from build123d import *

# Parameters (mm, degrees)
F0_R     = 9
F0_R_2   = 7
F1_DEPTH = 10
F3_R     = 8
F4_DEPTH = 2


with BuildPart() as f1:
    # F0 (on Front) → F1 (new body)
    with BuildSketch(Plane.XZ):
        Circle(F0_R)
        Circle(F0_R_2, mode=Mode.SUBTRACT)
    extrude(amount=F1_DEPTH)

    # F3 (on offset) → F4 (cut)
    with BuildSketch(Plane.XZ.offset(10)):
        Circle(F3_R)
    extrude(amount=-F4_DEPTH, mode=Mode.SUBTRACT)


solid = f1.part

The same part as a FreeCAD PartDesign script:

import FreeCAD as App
import Part
import Sketcher

V = App.Vector
Q = App.Units.Quantity

doc = App.newDocument("Part")
params = doc.addObject("Spreadsheet::Sheet", "Params")
for row, (alias, value) in enumerate([
    ("sketch1_diameter", "18 mm"),
    ("sketch1_diameter2", "14 mm"),
    ("pad1_length", "10 mm"),
    ("sketch2_diameter", "16 mm"),
    ("pocket1_length", "2 mm"),
], start=1):
    params.set(f"A{row}", alias)
    params.set(f"B{row}", "=" + value)
    params.setAlias(f"B{row}", alias)

body = doc.addObject("PartDesign::Body", "Body")

sketch1 = doc.addObject("Sketcher::SketchObject", "Sketch")
body.addObject(sketch1)
sketch1.AttachmentSupport = (doc.XZ_Plane, [""])
sketch1.MapMode = "FlatFace"
sketch1.addGeometry([
    Part.Circle(V(0, 0, 0), V(0, 0, 1), 9),
    Part.Circle(V(0, 0, 0), V(0, 0, 1), 7),
], False)
sketch1.addConstraint([
    Sketcher.Constraint("Coincident", 0, 3, -1, 1),
    Sketcher.Constraint("Coincident", 1, 3, -1, 1),
    Sketcher.Constraint("Diameter", 0, Q("18 mm")),
    Sketcher.Constraint("Diameter", 1, Q("14 mm")),
])
sketch1.setExpression("Constraints[2]", "Params.sketch1_diameter")
sketch1.setExpression("Constraints[3]", "Params.sketch1_diameter2")
pad1 = doc.addObject("PartDesign::Pad", "Pad")
body.addObject(pad1)
pad1.Profile = sketch1
pad1.setExpression("Length", "Params.pad1_length")

sketch2 = doc.addObject("Sketcher::SketchObject", "Sketch001")
body.addObject(sketch2)
sketch2.AttachmentSupport = (doc.XZ_Plane, [""])
sketch2.MapMode = "FlatFace"
sketch2.AttachmentOffset = App.Placement(V(0, 0, 10), App.Rotation())
sketch2.addGeometry(Part.Circle(V(0, 0, 0), V(0, 0, 1), 8), False)
sketch2.addConstraint([
    Sketcher.Constraint("Coincident", 0, 3, -1, 1),
    Sketcher.Constraint("Diameter", 0, Q("16 mm")),
])
sketch2.setExpression("Constraints[1]", "Params.sketch2_diameter")
pocket1 = doc.addObject("PartDesign::Pocket", "Pocket")
body.addObject(pocket1)
pocket1.Profile = sketch2
pocket1.setExpression("Length", "Params.pocket1_length")

doc.recompute()
